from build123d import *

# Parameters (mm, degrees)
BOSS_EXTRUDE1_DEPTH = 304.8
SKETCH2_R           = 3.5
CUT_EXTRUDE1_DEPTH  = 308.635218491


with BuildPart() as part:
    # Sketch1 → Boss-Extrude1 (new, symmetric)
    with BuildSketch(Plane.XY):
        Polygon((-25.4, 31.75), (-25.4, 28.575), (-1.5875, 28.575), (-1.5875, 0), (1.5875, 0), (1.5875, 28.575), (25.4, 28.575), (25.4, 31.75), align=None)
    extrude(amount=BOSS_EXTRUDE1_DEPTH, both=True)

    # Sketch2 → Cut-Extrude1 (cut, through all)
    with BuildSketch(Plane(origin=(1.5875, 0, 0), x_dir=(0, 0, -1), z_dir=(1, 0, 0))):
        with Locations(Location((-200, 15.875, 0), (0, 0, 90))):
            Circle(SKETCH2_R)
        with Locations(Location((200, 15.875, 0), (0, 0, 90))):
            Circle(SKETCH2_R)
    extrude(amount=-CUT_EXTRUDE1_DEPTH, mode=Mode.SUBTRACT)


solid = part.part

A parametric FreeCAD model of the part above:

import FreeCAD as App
import Part
import Sketcher
Q = App.Units.Quantity


def add_polygon(sketch, points):
    """Adds a closed chain of lines whose ends are joined by coincident constraints."""
    first, n = sketch.GeometryCount, len(points)
    for a, b in zip(points, points[1:] + points[:1]):
        sketch.addGeometry(Part.LineSegment(App.Vector(*a, 0), App.Vector(*b, 0)), False)
    for i in range(n):
        sketch.addConstraint(Sketcher.Constraint("Coincident", first + i, 2, first + (i + 1) % n, 1))

doc = App.newDocument("Part")
body = doc.addObject("PartDesign::Body", "Body")

# Sketch on XY plane
sketch1 = doc.addObject("Sketcher::SketchObject", "Sketch")
body.addObject(sketch1)
sketch1.AttachmentSupport = (doc.XY_Plane, [""])
sketch1.MapMode = "FlatFace"
add_polygon(sketch1, [(-25.4, 31.8), (-25.4, 28.6), (-1.6, 28.6), (-1.6, 0), (1.6, 0), (1.6, 28.6), (25.4, 28.6), (25.4, 31.8)])  # lines 0-7
sketch1.addConstraint([
    Sketcher.Constraint("Vertical", 0),
    Sketcher.Constraint("Horizontal", 1),
    Sketcher.Constraint("Vertical", 2),
    Sketcher.Constraint("Horizontal", 3),
    Sketcher.Constraint("Vertical", 4),
    Sketcher.Constraint("Horizontal", 5),
    Sketcher.Constraint("Vertical", 6),
    Sketcher.Constraint("Horizontal", 7),
    Sketcher.Constraint("Symmetric", 2, 2, 3, 2, -1, 1),
    Sketcher.Constraint("Symmetric", 0, 2, 5, 2, -2),
    Sketcher.Constraint("Equal", 3, 0),
    Sketcher.Constraint("DistanceX", 7, 2, 7, 1, Q("2 in")),
    Sketcher.Constraint("DistanceX", 1, 1, 1, 2, Q("0.9375 in")),
    Sketcher.Constraint("DistanceY", 2, 2, 2, 1, Q("1.125 in")),
])
pad1 = doc.addObject("PartDesign::Pad", "Pad")
body.addObject(pad1)
pad1.Profile = sketch1
pad1.Length = Q("24 in")
pad1.Midplane = True

# Sketch on YZ plane
sketch2 = doc.addObject("Sketcher::SketchObject", "Sketch001")
body.addObject(sketch2)
sketch2.AttachmentSupport = (doc.YZ_Plane, [""])
sketch2.MapMode = "FlatFace"
sketch2.AttachmentOffset = App.Placement(App.Vector(0, 0, 0.0625 * 25.4), App.Rotation())
sketch2.addGeometry([
    Part.Circle(App.Vector(15.9, 200, 0), App.Vector(0, 0, 1), 3.5),
    Part.Circle(App.Vector(15.9, -200, 0), App.Vector(0, 0, 1), 3.5),
], False)
sketch2.addConstraint([
    Sketcher.Constraint("Equal", 0, 1),
    Sketcher.Constraint("Symmetric", 0, 3, 1, 3, -1),
    Sketcher.Constraint("Diameter", 0, 7.0),
    Sketcher.Constraint("DistanceX", -1, 1, 0, 3, Q("0.625 in")),
    Sketcher.Constraint("DistanceY", -1, 1, 0, 3, 200.0),
])
pocket1 = doc.addObject("PartDesign::Pocket", "Pocket")
body.addObject(pocket1)
pocket1.Profile = sketch2
pocket1.Type = "ThroughAll"

doc.recompute()
